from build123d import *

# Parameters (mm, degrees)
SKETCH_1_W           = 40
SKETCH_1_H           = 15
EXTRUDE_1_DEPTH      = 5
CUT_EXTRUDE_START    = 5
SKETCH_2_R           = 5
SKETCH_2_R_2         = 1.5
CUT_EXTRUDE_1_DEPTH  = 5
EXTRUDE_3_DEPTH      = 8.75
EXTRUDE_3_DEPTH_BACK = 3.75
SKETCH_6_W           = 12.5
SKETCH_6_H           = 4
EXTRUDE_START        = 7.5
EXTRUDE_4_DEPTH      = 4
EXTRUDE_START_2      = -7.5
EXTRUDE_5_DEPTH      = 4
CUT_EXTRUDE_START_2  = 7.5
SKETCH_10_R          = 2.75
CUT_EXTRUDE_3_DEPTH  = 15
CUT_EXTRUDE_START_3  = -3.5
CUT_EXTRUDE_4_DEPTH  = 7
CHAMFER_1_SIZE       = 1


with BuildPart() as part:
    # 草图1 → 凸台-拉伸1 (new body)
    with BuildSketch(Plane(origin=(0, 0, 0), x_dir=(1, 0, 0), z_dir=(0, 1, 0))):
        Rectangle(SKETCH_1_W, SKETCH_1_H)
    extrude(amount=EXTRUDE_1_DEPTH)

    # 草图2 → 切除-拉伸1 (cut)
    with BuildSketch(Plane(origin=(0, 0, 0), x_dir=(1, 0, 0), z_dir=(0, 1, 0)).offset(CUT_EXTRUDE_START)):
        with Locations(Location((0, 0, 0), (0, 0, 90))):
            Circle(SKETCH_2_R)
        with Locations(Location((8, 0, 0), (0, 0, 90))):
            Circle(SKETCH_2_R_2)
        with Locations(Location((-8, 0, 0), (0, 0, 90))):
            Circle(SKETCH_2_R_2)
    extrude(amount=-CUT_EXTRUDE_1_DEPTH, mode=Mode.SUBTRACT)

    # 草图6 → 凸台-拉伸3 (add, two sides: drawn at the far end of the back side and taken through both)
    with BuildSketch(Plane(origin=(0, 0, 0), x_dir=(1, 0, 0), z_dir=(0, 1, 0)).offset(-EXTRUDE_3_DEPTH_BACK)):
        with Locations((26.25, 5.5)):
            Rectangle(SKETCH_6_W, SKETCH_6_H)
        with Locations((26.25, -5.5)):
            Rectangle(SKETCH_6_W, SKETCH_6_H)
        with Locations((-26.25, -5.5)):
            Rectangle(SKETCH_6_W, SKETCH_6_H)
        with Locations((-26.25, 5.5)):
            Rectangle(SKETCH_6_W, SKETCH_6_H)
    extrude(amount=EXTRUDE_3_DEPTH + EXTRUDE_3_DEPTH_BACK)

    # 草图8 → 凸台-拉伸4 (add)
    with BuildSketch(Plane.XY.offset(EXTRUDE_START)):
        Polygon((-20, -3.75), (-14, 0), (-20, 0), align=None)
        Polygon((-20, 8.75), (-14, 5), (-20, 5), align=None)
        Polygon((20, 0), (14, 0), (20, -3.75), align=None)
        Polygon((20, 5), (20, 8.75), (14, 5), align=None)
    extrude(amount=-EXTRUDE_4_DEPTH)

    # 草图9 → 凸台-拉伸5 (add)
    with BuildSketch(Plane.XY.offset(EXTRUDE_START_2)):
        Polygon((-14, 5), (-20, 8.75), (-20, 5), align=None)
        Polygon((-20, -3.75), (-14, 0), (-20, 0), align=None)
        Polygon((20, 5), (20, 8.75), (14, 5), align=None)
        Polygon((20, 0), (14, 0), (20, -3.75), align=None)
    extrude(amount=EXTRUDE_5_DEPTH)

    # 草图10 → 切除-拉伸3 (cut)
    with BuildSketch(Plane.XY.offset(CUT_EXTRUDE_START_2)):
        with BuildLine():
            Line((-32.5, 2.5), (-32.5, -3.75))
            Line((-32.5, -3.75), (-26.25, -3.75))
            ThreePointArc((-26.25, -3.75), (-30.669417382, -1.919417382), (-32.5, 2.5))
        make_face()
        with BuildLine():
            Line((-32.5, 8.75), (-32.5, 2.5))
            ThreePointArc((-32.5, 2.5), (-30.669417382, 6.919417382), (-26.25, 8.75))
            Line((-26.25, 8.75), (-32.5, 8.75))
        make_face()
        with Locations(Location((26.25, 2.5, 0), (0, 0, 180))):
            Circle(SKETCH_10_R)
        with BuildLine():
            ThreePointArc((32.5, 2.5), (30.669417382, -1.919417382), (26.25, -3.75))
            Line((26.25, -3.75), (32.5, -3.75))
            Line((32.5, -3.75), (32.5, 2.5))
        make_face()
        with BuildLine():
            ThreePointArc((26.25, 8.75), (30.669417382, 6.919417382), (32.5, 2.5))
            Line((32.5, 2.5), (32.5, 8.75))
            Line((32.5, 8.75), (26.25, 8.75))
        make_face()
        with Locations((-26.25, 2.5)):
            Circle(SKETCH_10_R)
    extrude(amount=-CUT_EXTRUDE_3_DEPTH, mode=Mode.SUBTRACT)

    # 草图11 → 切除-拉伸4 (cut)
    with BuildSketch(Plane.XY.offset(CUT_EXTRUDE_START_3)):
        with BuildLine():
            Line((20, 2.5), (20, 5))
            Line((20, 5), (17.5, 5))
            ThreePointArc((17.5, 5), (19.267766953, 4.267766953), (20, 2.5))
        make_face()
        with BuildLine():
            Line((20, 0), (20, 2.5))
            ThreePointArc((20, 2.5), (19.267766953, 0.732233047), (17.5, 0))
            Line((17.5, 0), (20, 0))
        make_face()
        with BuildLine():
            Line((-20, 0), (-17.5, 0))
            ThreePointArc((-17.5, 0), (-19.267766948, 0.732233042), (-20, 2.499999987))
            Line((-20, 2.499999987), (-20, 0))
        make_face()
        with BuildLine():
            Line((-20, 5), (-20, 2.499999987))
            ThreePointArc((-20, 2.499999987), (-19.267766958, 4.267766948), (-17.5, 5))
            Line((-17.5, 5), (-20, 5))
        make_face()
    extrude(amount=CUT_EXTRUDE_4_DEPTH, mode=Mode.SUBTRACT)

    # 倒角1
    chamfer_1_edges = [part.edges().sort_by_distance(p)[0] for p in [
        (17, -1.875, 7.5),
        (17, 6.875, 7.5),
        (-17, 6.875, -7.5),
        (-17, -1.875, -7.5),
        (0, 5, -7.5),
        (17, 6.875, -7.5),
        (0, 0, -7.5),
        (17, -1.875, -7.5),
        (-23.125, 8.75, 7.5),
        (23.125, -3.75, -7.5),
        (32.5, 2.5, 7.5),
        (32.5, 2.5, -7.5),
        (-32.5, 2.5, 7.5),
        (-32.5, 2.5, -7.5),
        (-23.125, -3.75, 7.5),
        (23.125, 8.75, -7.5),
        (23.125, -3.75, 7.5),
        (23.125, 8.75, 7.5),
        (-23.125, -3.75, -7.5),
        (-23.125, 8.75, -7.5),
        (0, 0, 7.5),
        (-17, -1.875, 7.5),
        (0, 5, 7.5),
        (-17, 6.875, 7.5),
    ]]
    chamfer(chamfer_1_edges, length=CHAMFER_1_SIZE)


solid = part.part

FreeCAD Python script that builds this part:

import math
import FreeCAD as App
import Part
import Sketcher

V = App.Vector


def edges_at(feature, points):
    """Names of the edges that pass closest to the given points."""
    edges = feature.Shape.Edges
    near = lambda p: min(range(len(edges)), key=lambda i: edges[i].distToShape(Part.Vertex(*p))[0])
    return sorted({f"Edge{near(p) + 1}" for p in points})


def add_polygon(sketch, points):
    """Adds a closed chain of lines whose ends are joined by coincident constraints."""
    first, n = sketch.GeometryCount, len(points)
    for a, b in zip(points, points[1:] + points[:1]):
        sketch.addGeometry(Part.LineSegment(App.Vector(*a, 0), App.Vector(*b, 0)), False)
    for i in range(n):
        sketch.addConstraint(Sketcher.Constraint("Coincident", first + i, 2, first + (i + 1) % n, 1))

doc = App.newDocument("Part")
body = doc.addObject("PartDesign::Body", "Body")

# Sketch on XZ plane
sketch1 = body.newObject("Sketcher::SketchObject", "Sketch")
sketch1.AttachmentSupport = (doc.getObject("XZ_Plane"), [""])
sketch1.MapMode = "FlatFace"
add_polygon(sketch1, [(-20, -7.5), (-20, 7.5), (20, 7.5), (20, -7.5)])  # lines 0-3
sketch1.addConstraint([
    Sketcher.Constraint("Vertical", 0),
    Sketcher.Constraint("Horizontal", 1),
    Sketcher.Constraint("Vertical", 2),
    Sketcher.Constraint("Horizontal", 3),
    Sketcher.Constraint("Symmetric", 0, 2, 2, 2, -1, 1),
    Sketcher.Constraint("DistanceX", 1, 1, 1, 2, 40.0),
    Sketcher.Constraint("DistanceY", 0, 1, 0, 2, 15.0),
])
pad1 = body.newObject("PartDesign::Pad", "Pad")
pad1.Profile = sketch1
pad1.Length = 5
pad1.Reversed = True

# Sketch on XZ plane
sketch2 = body.newObject("Sketcher::SketchObject", "Sketch001")
sketch2.AttachmentSupport = (doc.getObject("XZ_Plane"), [""])
sketch2.MapMode = "FlatFace"
sketch2.AttachmentOffset = App.Placement(V(0, 0, -5), App.Rotation())
sketch2.addGeometry([
    Part.Circle(V(0, 0, 0), V(0, 0, 1), 5),
    Part.Circle(V(8, 0, 0), V(0, 0, 1), 1.5),
    Part.Circle(V(-8, 0, 0), V(0, 0, 1), 1.5),
], False)
sketch2.addConstraint([
    Sketcher.Constraint("Coincident", 0, 3, -1, 1),
    Sketcher.Constraint("Equal", 1, 2),
    Sketcher.Constraint("Symmetric", 1, 3, 2, 3, -1, 1),
    Sketcher.Constraint("PointOnObject", 1, 3, -1),
    Sketcher.Constraint("Diameter", 0, 10.0),
    Sketcher.Constraint("Diameter", 1, 3.0),
    Sketcher.Constraint("DistanceX", -1, 1, 1, 3, 8.0),
])
pocket1 = body.newObject("PartDesign::Pocket", "Pocket")
pocket1.Profile = sketch2
pocket1.Length = 5
pocket1.Reversed = True

# Sketch on XZ plane
sketch3 = body.newObject("Sketcher::SketchObject", "Sketch002")
sketch3.AttachmentSupport = (doc.getObject("XZ_Plane"), [""])
sketch3.MapMode = "FlatFace"
add_polygon(sketch3, [(20, -7.5), (20, -3.5), (32.5, -3.5), (32.5, -7.5)])  # lines 0-3
add_polygon(sketch3, [(20, 3.5), (20, 7.5), (32.5, 7.5), (32.5, 3.5)])  # lines 4-7
add_polygon(sketch3, [(-32.5, 3.5), (-32.5, 7.5), (-20, 7.5), (-20, 3.5)])  # lines 8-11
add_polygon(sketch3, [(-32.5, -7.5), (-32.5, -3.5), (-20, -3.5), (-20, -7.5)])  # lines 12-15
sketch3.addConstraint([
    Sketcher.Constraint("Vertical", 0),
    Sketcher.Constraint("Horizontal", 1),
    Sketcher.Constraint("Vertical", 2),
    Sketcher.Constraint("Horizontal", 3),
    Sketcher.Constraint("Vertical", 4),
    Sketcher.Constraint("Horizontal", 5),
    Sketcher.Constraint("Vertical", 6),
    Sketcher.Constraint("Horizontal", 7),
    Sketcher.Constraint("Vertical", 8),
    Sketcher.Constraint("Horizontal", 9),
    Sketcher.Constraint("Vertical", 10),
    Sketcher.Constraint("Horizontal", 11),
    Sketcher.Constraint("Vertical", 12),
    Sketcher.Constraint("Horizontal", 13),
    Sketcher.Constraint("Vertical", 14),
    Sketcher.Constraint("Horizontal", 15),
    Sketcher.Constraint("Symmetric", 2, 2, 8, 2, -1, 1),
    Sketcher.Constraint("Symmetric", 0, 2, 10, 2, -1, 1),
    Sketcher.Constraint("Symmetric", 6, 2, 12, 2, -1, 1),
    Sketcher.Constraint("Symmetric", 4, 2, 14, 2, -1, 1),
    Sketcher.Constraint("Symmetric", 5, 2, 8, 2, -2),
    Sketcher.Constraint("Symmetric", 7, 2, 10, 2, -2),
    Sketcher.Constraint("DistanceY", 0, 1, 0, 2, 4.0),
    Sketcher.Constraint("DistanceX", 1, 1, 1, 2, 12.5),
    Sketcher.Constraint("DistanceX", -1, 1, 0, 2, 20.0),
    Sketcher.Constraint("DistanceY", 0, 2, 4, 2, 11.0),
])
pad2 = body.newObject("PartDesign::Pad", "Pad001")
pad2.Profile = sketch3
pad2.Type = "TwoLengths"
pad2.Length = 8.75
pad2.Length2 = 3.75
pad2.Reversed = True

# Sketch on XY plane
sketch4 = body.newObject("Sketcher::SketchObject", "Sketch003")
sketch4.AttachmentSupport = (doc.getObject("XY_Plane"), [""])
sketch4.MapMode = "FlatFace"
sketch4.AttachmentOffset = App.Placement(V(0, 0, 7.5), App.Rotation())
add_polygon(sketch4, [(-20, -3.75), (-14, 0), (-20, 0)])  # lines 0-2
add_polygon(sketch4, [(-14, 5), (-20, 8.75), (-20, 5)])  # lines 3-5
add_polygon(sketch4, [(20, 0), (14, 0), (20, -3.75)])  # lines 6-8
add_polygon(sketch4, [(20, 5), (20, 8.75), (14, 5)])  # lines 9-11
sketch4.addConstraint([
    Sketcher.Constraint("Horizontal", 1),
    Sketcher.Constraint("Vertical", 2),
    Sketcher.Constraint("Vertical", 4),
    Sketcher.Constraint("Horizontal", 5),
    Sketcher.Constraint("Horizontal", 6),
    Sketcher.Constraint("Vertical", 8),
    Sketcher.Constraint("Vertical", 9),
    Sketcher.Constraint("Horizontal", 11),
    Sketcher.Constraint("Symmetric", 0, 2, 6, 2, -1, 1),
    Sketcher.Constraint("Symmetric", 2, 2, 7, 2, -2),
    Sketcher.Constraint("Symmetric", 3, 2, 9, 2, -2),
    Sketcher.Constraint("Symmetric", 5, 2, 10, 2, -2),
    Sketcher.Constraint("PointOnObject", 0, 2, -1),
    Sketcher.Constraint("Parallel", 3, 7),
    Sketcher.Constraint("Vertical", 2, 2, 3, 2),
    Sketcher.Constraint("Vertical", 0, 2, 5, 2),
    Sketcher.Constraint("DistanceX", 1, 2, 1, 1, 6.0),
    Sketcher.Constraint("DistanceX", 0, 2, -1, 1, 14.0),
    Sketcher.Constraint("DistanceY", -1, 1, 4, 2, 5.0),
    Sketcher.Constraint("DistanceY", 2, 2, 2, 1, 3.75),
])
pad3 = body.newObject("PartDesign::Pad", "Pad002")
pad3.Profile = sketch4
pad3.Length = 4
pad3.Reversed = True

# Sketch on XY plane
sketch5 = body.newObject("Sketcher::SketchObject", "Sketch004")
sketch5.AttachmentSupport = (doc.getObject("XY_Plane"), [""])
sketch5.MapMode = "FlatFace"
sketch5.AttachmentOffset = App.Placement(V(0, 0, -7.5), App.Rotation())
add_polygon(sketch5, [(-14, 5), (-20, 8.75), (-20, 5)])  # lines 0-2
add_polygon(sketch5, [(-20, -3.75), (-14, 0), (-20, 0)])  # lines 3-5
add_polygon(sketch5, [(20, 5), (20, 8.75), (14, 5)])  # lines 6-8
add_polygon(sketch5, [(20, 0), (14, 0), (20, -3.75)])  # lines 9-11
sketch5.addConstraint([
    Sketcher.Constraint("Vertical", 1),
    Sketcher.Constraint("Horizontal", 2),
    Sketcher.Constraint("Horizontal", 4),
    Sketcher.Constraint("Vertical", 5),
    Sketcher.Constraint("Vertical", 6),
    Sketcher.Constraint("Horizontal", 8),
    Sketcher.Constraint("Horizontal", 9),
    Sketcher.Constraint("Vertical", 11),
    Sketcher.Constraint("Symmetric", 3, 2, 9, 2, -1, 1),
    Sketcher.Constraint("Symmetric", 0, 2, 6, 2, -2),
    Sketcher.Constraint("Symmetric", 2, 2, 7, 2, -2),
    Sketcher.Constraint("Symmetric", 5, 2, 10, 2, -2),
    Sketcher.Constraint("PointOnObject", 3, 2, -1),
    Sketcher.Constraint("Parallel", 3, 7),
    Sketcher.Constraint("Vertical", 2, 2, 3, 2),
    Sketcher.Constraint("Vertical", 1, 2, 4, 2),
    Sketcher.Constraint("DistanceX", 2, 1, 2, 2, 6.0),
    Sketcher.Constraint("DistanceX", 0, 2, -1, 1, 20.0),
    Sketcher.Constraint("DistanceY", -1, 1, 1, 2, 5.0),
    Sketcher.Constraint("DistanceY", 1, 2, 1, 1, 3.75),
])
pad4 = body.newObject("PartDesign::Pad", "Pad003")
pad4.Profile = sketch5
pad4.Length = 4

# Sketch on XY plane
sketch6 = body.newObject("Sketcher::SketchObject", "Sketch005")
sketch6.AttachmentSupport = (doc.getObject("XY_Plane"), [""])
sketch6.MapMode = "FlatFace"
sketch6.AttachmentOffset = App.Placement(V(0, 0, 7.5), App.Rotation())
sketch6.addGeometry([
    Part.LineSegment(V(-32.5, 2.5, 0), V(-32.5, -3.75, 0)),  # 0
    Part.LineSegment(V(-32.5, -3.75, 0), V(-26.25, -3.75, 0)),  # 1
    Part.ArcOfCircle(Part.Circle(V(-26.25, 2.5, 0), V(0, 0, 1), 6.25), math.radians(-180), math.radians(-90)),  # 2
    Part.LineSegment(V(-32.5, 8.75, 0), V(-32.5, 2.5, 0)),  # 3
    Part.ArcOfCircle(Part.Circle(V(-26.25, 2.5, 0), V(0, 0, 1), 6.25), math.radians(90), math.radians(180)),  # 4
    Part.LineSegment(V(-26.25, 8.75, 0), V(-32.5, 8.75, 0)),  # 5
    Part.Circle(V(26.25, 2.5, 0), V(0, 0, 1), 2.75),  # 6
    Part.ArcOfCircle(Part.Circle(V(26.25, 2.5, 0), V(0, 0, 1), 6.25), math.radians(-90), math.radians(0)),  # 7
    Part.LineSegment(V(26.25, -3.75, 0), V(32.5, -3.75, 0)),  # 8
    Part.LineSegment(V(32.5, -3.75, 0), V(32.5, 2.5, 0)),  # 9
    Part.ArcOfCircle(Part.Circle(V(26.25, 2.5, 0), V(0, 0, 1), 6.25), math.radians(0), math.radians(90)),  # 10
    Part.LineSegment(V(32.5, 2.5, 0), V(32.5, 8.75, 0)),  # 11
    Part.LineSegment(V(32.5, 8.75, 0), V(26.25, 8.75, 0)),  # 12
    Part.Circle(V(-26.25, 2.5, 0), V(0, 0, 1), 2.75),  # 13
], False)
sketch6.addConstraint([
    Sketcher.Constraint("Coincident", 0, 2, 1, 1),
    Sketcher.Constraint("Tangent", 1, 2, 2, 2),
    Sketcher.Constraint("Tangent", 2, 1, 0, 1),
    Sketcher.Constraint("Tangent", 3, 2, 4, 2),
    Sketcher.Constraint("Tangent", 4, 1, 5, 1),
    Sketcher.Constraint("Coincident", 5, 2, 3, 1),
    Sketcher.Constraint("Tangent", 7, 1, 8, 1),
    Sketcher.Constraint("Coincident", 8, 2, 9, 1),
    Sketcher.Constraint("Tangent", 9, 2, 7, 2),
    Sketcher.Constraint("Tangent", 10, 1, 11, 1),
    Sketcher.Constraint("Coincident", 11, 2, 12, 1),
    Sketcher.Constraint("Tangent", 12, 2, 10, 2),
    Sketcher.Constraint("Vertical", 0),
    Sketcher.Constraint("Horizontal", 1),
    Sketcher.Constraint("Vertical", 3),
    Sketcher.Constraint("Horizontal", 5),
    Sketcher.Constraint("Horizontal", 8),
    Sketcher.Constraint("Vertical", 9),
    Sketcher.Constraint("Vertical", 11),
    Sketcher.Constraint("Horizontal", 12),
    Sketcher.Constraint("Coincident", 4, 3, 2, 3),
    Sketcher.Constraint("Coincident", 7, 3, 6, 3),
    Sketcher.Constraint("Coincident", 10, 3, 6, 3),
    Sketcher.Constraint("Coincident", 13, 3, 2, 3),
    Sketcher.Constraint("Equal", 2, 4),
    Sketcher.Constraint("Equal", 4, 7),
    Sketcher.Constraint("Equal", 7, 10),
    Sketcher.Constraint("Equal", 6, 13),
    Sketcher.Constraint("Symmetric", 2, 3, 6, 3, -2),
    Sketcher.Constraint("Diameter", 6, 5.5),
    Sketcher.Constraint("Radius", 2, 6.25),
    Sketcher.Constraint("DistanceY", -1, 1, 2, 3, 2.5),
    Sketcher.Constraint("DistanceX", 0, 2, -1, 1, 32.5),
])
pocket2 = body.newObject("PartDesign::Pocket", "Pocket001")
pocket2.Profile = sketch6
pocket2.Length = 15

# Sketch on XY plane
sketch7 = body.newObject("Sketcher::SketchObject", "Sketch006")
sketch7.AttachmentSupport = (doc.getObject("XY_Plane"), [""])
sketch7.MapMode = "FlatFace"
sketch7.AttachmentOffset = App.Placement(V(0, 0, -3.5), App.Rotation())
sketch7.addGeometry([
    Part.LineSegment(V(20, 2.5, 0), V(20, 5, 0)),  # 0
    Part.LineSegment(V(20, 5, 0), V(17.5, 5, 0)),  # 1
    Part.ArcOfCircle(Part.Circle(V(17.5, 2.5, 0), V(0, 0, 1), 2.5), math.radians(0), math.radians(90)),  # 2
    Part.LineSegment(V(20, 0, 0), V(20, 2.5, 0)),  # 3
    Part.ArcOfCircle(Part.Circle(V(17.5, 2.5, 0), V(0, 0, 1), 2.5), math.radians(-90), math.radians(0)),  # 4
    Part.LineSegment(V(17.5, 0, 0), V(20, 0, 0)),  # 5
    Part.LineSegment(V(-20, 0, 0), V(-17.5, 0, 0)),  # 6
    Part.ArcOfCircle(Part.Circle(V(-17.5, 2.5, 0), V(0, 0, 1), 2.5), math.radians(-180), math.radians(-90)),  # 7
    Part.LineSegment(V(-20, 2.5, 0), V(-20, 0, 0)),  # 8
    Part.LineSegment(V(-20, 5, 0), V(-20, 2.5, 0)),  # 9
    Part.ArcOfCircle(Part.Circle(V(-17.5, 2.5, 0), V(0, 0, 1), 2.5), math.radians(90), math.radians(180)),  # 10
    Part.LineSegment(V(-17.5, 5, 0), V(-20, 5, 0)),  # 11
], False)
sketch7.addConstraint([
    Sketcher.Constraint("Coincident", 0, 2, 1, 1),
    Sketcher.Constraint("Tangent", 1, 2, 2, 2),
    Sketcher.Constraint("Tangent", 2, 1, 0, 1),
    Sketcher.Constraint("Tangent", 3, 2, 4, 2),
    Sketcher.Constraint("Tangent", 4, 1, 5, 1),
    Sketcher.Constraint("Coincident", 5, 2, 3, 1),
    Sketcher.Constraint("Tangent", 6, 2, 7, 2),
    Sketcher.Constraint("Tangent", 7, 1, 8, 1),
    Sketcher.Constraint("Coincident", 8, 2, 6, 1),
    Sketcher.Constraint("Tangent", 9, 2, 10, 2),
    Sketcher.Constraint("Tangent", 10, 1, 11, 1),
    Sketcher.Constraint("Coincident", 11, 2, 9, 1),
    Sketcher.Constraint("Vertical", 0),
    Sketcher.Constraint("Horizontal", 1),
    Sketcher.Constraint("Vertical", 3),
    Sketcher.Constraint("Horizontal", 5),
    Sketcher.Constraint("Horizontal", 6),
    Sketcher.Constraint("Vertical", 8),
    Sketcher.Constraint("Vertical", 9),
    Sketcher.Constraint("Horizontal", 11),
    Sketcher.Constraint("Coincident", 4, 3, 2, 3),
    Sketcher.Constraint("Coincident", 10, 3, 7, 3),
    Sketcher.Constraint("Equal", 2, 4),
    Sketcher.Constraint("Equal", 4, 7),
    Sketcher.Constraint("Equal", 7, 10),
    Sketcher.Constraint("Symmetric", 4, 1, 6, 2, -1, 1),
    Sketcher.Constraint("PointOnObject", 4, 1, -1),
    Sketcher.Constraint("Radius", 2, 2.5),
    Sketcher.Constraint("DistanceX", -1, 1, 0, 2, 20.0),
])
pocket3 = body.newObject("PartDesign::Pocket", "Pocket002")
pocket3.Profile = sketch7
pocket3.Length = 7
pocket3.Reversed = True
doc.recompute()

chamfer = body.newObject("PartDesign::Chamfer", "Chamfer")
chamfer.Base = (pocket3, edges_at(pocket3, [
    (17, -1.875, 7.5),
    (17, 6.875, 7.5),
    (-17, 6.875, -7.5),
    (-17, -1.875, -7.5),
    (0, 5, -7.5),
    (17, 6.875, -7.5),
    (0, 0, -7.5),
    (17, -1.875, -7.5),
    (-23.125, 8.75, 7.5),
    (23.125, -3.75, -7.5),
    (30.669, 6.919, 7.5),
    (30.669, 6.919, -7.5),
    (-30.669, -1.919, 7.5),
    (-30.669, -1.919, -7.5),
    (-23.125, -3.75, 7.5),
    (23.125, 8.75, -7.5),
    (23.125, -3.75, 7.5),
    (23.125, 8.75, 7.5),
    (-23.125, -3.75, -7.5),
    (-23.125, 8.75, -7.5),
    (0, 0, 7.5),
    (-17, -1.875, 7.5),
    (0, 5, 7.5),
    (-17, 6.875, 7.5),
]))
chamfer.Size = 1

doc.recompute()
